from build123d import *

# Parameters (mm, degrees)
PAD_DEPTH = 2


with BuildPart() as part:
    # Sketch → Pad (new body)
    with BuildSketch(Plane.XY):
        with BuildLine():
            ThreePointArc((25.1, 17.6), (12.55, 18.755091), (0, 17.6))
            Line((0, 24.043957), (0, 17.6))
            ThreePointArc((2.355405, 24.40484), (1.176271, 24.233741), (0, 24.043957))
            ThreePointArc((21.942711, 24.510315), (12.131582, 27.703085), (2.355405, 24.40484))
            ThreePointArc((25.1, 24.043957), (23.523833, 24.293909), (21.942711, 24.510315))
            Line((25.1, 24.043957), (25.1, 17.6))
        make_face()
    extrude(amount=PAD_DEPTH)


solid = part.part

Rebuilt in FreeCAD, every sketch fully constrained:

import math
import FreeCAD as App
import Part
import Sketcher
from FreeCAD import Vector
Q = App.Units.Quantity

doc = App.newDocument("Part")
params = doc.addObject("Spreadsheet::Sheet", "Params")
for row, (alias, value) in enumerate([
    ("pad1_length", "2 mm"),
], start=1):
    params.set(f"A{row}", alias)
    params.set(f"B{row}", "=" + value)
    params.setAlias(f"B{row}", alias)

body = doc.addObject("PartDesign::Body", "Body")

sketch1 = doc.addObject("Sketcher::SketchObject", "Sketch")
body.addObject(sketch1)
sketch1.AttachmentSupport = (doc.XY_Plane, [""])
sketch1.MapMode = "FlatFace"
sketch1.addGeometry([
    Part.ArcOfCircle(Part.Circle(Vector(12.6, -50, 0), Vector(0, 0, 1), 68.8), math.radians(79), math.radians(101)),
    Part.LineSegment(Vector(25.1, 17.6, 0), Vector(25.1, 24, 0)),
    Part.ArcOfCircle(Part.Circle(Vector(12.5, -50, 0), Vector(0, 0, 1), 75.1), math.radians(80.38), math.radians(82.82)),
    Part.ArcOfCircle(Part.Circle(Vector(12.2, 11.3, 0), Vector(0, 0, 1), 16.4), math.radians(54), math.radians(127)),
    Part.ArcOfCircle(Part.Circle(Vector(12.6, -50, 0), Vector(0, 0, 1), 75.1), math.radians(97.8), math.radians(99.62)),
    Part.LineSegment(Vector(0, 24, 0), Vector(0, 17.6, 0)),
], False)
sketch1.addConstraint([
    Sketcher.Constraint("Coincident", 0, 1, 1, 1),
    Sketcher.Constraint("Coincident", 1, 2, 2, 1),
    Sketcher.Constraint("Coincident", 2, 2, 3, 1),
    Sketcher.Constraint("Coincident", 3, 2, 4, 1),
    Sketcher.Constraint("Coincident", 4, 2, 5, 1),
    Sketcher.Constraint("Coincident", 5, 2, 0, 2),
    Sketcher.Constraint("Vertical", 1),
    Sketcher.Constraint("Vertical", 5),
    Sketcher.Constraint("PointOnObject", 4, 2, -2),
    Sketcher.Constraint("Horizontal", 1, 2, 4, 2),
    Sketcher.Constraint("Horizontal", 0, 1, 5, 2),
    Sketcher.Constraint("DistanceX", -1, 1, 0, 1, Q("25.1 mm")),
    Sketcher.Constraint("DistanceY", -1, 1, 0, 1, Q("17.6 mm")),
    Sketcher.Constraint("Radius", 3, Q("16.39967 mm")),
    Sketcher.Constraint("Radius", 0, Q("68.755074 mm")),
    Sketcher.Constraint("Radius", 2, Q("75.104115 mm")),
    Sketcher.Constraint("Radius", 4, Q("75.100593 mm")),
    Sketcher.Constraint("DistanceX", -1, 1, 2, 3, Q("12.5494 mm")),
    Sketcher.Constraint("DistanceY", 0, 3, 2, 2, Q("74.510298 mm")),
    Sketcher.Constraint("DistanceY", 1, 1, 1, 2, Q("6.443957 mm")),
    Sketcher.Constraint("DistanceX", -1, 1, 3, 3, Q("12.21989 mm")),
    Sketcher.Constraint("DistanceY", 4, 3, -1, 1, Q("50.000589 mm")),
])
pad1 = doc.addObject("PartDesign::Pad", "Pad")
body.addObject(pad1)
pad1.Profile = sketch1
pad1.setExpression("Length", "Params.pad1_length")

doc.recompute()
